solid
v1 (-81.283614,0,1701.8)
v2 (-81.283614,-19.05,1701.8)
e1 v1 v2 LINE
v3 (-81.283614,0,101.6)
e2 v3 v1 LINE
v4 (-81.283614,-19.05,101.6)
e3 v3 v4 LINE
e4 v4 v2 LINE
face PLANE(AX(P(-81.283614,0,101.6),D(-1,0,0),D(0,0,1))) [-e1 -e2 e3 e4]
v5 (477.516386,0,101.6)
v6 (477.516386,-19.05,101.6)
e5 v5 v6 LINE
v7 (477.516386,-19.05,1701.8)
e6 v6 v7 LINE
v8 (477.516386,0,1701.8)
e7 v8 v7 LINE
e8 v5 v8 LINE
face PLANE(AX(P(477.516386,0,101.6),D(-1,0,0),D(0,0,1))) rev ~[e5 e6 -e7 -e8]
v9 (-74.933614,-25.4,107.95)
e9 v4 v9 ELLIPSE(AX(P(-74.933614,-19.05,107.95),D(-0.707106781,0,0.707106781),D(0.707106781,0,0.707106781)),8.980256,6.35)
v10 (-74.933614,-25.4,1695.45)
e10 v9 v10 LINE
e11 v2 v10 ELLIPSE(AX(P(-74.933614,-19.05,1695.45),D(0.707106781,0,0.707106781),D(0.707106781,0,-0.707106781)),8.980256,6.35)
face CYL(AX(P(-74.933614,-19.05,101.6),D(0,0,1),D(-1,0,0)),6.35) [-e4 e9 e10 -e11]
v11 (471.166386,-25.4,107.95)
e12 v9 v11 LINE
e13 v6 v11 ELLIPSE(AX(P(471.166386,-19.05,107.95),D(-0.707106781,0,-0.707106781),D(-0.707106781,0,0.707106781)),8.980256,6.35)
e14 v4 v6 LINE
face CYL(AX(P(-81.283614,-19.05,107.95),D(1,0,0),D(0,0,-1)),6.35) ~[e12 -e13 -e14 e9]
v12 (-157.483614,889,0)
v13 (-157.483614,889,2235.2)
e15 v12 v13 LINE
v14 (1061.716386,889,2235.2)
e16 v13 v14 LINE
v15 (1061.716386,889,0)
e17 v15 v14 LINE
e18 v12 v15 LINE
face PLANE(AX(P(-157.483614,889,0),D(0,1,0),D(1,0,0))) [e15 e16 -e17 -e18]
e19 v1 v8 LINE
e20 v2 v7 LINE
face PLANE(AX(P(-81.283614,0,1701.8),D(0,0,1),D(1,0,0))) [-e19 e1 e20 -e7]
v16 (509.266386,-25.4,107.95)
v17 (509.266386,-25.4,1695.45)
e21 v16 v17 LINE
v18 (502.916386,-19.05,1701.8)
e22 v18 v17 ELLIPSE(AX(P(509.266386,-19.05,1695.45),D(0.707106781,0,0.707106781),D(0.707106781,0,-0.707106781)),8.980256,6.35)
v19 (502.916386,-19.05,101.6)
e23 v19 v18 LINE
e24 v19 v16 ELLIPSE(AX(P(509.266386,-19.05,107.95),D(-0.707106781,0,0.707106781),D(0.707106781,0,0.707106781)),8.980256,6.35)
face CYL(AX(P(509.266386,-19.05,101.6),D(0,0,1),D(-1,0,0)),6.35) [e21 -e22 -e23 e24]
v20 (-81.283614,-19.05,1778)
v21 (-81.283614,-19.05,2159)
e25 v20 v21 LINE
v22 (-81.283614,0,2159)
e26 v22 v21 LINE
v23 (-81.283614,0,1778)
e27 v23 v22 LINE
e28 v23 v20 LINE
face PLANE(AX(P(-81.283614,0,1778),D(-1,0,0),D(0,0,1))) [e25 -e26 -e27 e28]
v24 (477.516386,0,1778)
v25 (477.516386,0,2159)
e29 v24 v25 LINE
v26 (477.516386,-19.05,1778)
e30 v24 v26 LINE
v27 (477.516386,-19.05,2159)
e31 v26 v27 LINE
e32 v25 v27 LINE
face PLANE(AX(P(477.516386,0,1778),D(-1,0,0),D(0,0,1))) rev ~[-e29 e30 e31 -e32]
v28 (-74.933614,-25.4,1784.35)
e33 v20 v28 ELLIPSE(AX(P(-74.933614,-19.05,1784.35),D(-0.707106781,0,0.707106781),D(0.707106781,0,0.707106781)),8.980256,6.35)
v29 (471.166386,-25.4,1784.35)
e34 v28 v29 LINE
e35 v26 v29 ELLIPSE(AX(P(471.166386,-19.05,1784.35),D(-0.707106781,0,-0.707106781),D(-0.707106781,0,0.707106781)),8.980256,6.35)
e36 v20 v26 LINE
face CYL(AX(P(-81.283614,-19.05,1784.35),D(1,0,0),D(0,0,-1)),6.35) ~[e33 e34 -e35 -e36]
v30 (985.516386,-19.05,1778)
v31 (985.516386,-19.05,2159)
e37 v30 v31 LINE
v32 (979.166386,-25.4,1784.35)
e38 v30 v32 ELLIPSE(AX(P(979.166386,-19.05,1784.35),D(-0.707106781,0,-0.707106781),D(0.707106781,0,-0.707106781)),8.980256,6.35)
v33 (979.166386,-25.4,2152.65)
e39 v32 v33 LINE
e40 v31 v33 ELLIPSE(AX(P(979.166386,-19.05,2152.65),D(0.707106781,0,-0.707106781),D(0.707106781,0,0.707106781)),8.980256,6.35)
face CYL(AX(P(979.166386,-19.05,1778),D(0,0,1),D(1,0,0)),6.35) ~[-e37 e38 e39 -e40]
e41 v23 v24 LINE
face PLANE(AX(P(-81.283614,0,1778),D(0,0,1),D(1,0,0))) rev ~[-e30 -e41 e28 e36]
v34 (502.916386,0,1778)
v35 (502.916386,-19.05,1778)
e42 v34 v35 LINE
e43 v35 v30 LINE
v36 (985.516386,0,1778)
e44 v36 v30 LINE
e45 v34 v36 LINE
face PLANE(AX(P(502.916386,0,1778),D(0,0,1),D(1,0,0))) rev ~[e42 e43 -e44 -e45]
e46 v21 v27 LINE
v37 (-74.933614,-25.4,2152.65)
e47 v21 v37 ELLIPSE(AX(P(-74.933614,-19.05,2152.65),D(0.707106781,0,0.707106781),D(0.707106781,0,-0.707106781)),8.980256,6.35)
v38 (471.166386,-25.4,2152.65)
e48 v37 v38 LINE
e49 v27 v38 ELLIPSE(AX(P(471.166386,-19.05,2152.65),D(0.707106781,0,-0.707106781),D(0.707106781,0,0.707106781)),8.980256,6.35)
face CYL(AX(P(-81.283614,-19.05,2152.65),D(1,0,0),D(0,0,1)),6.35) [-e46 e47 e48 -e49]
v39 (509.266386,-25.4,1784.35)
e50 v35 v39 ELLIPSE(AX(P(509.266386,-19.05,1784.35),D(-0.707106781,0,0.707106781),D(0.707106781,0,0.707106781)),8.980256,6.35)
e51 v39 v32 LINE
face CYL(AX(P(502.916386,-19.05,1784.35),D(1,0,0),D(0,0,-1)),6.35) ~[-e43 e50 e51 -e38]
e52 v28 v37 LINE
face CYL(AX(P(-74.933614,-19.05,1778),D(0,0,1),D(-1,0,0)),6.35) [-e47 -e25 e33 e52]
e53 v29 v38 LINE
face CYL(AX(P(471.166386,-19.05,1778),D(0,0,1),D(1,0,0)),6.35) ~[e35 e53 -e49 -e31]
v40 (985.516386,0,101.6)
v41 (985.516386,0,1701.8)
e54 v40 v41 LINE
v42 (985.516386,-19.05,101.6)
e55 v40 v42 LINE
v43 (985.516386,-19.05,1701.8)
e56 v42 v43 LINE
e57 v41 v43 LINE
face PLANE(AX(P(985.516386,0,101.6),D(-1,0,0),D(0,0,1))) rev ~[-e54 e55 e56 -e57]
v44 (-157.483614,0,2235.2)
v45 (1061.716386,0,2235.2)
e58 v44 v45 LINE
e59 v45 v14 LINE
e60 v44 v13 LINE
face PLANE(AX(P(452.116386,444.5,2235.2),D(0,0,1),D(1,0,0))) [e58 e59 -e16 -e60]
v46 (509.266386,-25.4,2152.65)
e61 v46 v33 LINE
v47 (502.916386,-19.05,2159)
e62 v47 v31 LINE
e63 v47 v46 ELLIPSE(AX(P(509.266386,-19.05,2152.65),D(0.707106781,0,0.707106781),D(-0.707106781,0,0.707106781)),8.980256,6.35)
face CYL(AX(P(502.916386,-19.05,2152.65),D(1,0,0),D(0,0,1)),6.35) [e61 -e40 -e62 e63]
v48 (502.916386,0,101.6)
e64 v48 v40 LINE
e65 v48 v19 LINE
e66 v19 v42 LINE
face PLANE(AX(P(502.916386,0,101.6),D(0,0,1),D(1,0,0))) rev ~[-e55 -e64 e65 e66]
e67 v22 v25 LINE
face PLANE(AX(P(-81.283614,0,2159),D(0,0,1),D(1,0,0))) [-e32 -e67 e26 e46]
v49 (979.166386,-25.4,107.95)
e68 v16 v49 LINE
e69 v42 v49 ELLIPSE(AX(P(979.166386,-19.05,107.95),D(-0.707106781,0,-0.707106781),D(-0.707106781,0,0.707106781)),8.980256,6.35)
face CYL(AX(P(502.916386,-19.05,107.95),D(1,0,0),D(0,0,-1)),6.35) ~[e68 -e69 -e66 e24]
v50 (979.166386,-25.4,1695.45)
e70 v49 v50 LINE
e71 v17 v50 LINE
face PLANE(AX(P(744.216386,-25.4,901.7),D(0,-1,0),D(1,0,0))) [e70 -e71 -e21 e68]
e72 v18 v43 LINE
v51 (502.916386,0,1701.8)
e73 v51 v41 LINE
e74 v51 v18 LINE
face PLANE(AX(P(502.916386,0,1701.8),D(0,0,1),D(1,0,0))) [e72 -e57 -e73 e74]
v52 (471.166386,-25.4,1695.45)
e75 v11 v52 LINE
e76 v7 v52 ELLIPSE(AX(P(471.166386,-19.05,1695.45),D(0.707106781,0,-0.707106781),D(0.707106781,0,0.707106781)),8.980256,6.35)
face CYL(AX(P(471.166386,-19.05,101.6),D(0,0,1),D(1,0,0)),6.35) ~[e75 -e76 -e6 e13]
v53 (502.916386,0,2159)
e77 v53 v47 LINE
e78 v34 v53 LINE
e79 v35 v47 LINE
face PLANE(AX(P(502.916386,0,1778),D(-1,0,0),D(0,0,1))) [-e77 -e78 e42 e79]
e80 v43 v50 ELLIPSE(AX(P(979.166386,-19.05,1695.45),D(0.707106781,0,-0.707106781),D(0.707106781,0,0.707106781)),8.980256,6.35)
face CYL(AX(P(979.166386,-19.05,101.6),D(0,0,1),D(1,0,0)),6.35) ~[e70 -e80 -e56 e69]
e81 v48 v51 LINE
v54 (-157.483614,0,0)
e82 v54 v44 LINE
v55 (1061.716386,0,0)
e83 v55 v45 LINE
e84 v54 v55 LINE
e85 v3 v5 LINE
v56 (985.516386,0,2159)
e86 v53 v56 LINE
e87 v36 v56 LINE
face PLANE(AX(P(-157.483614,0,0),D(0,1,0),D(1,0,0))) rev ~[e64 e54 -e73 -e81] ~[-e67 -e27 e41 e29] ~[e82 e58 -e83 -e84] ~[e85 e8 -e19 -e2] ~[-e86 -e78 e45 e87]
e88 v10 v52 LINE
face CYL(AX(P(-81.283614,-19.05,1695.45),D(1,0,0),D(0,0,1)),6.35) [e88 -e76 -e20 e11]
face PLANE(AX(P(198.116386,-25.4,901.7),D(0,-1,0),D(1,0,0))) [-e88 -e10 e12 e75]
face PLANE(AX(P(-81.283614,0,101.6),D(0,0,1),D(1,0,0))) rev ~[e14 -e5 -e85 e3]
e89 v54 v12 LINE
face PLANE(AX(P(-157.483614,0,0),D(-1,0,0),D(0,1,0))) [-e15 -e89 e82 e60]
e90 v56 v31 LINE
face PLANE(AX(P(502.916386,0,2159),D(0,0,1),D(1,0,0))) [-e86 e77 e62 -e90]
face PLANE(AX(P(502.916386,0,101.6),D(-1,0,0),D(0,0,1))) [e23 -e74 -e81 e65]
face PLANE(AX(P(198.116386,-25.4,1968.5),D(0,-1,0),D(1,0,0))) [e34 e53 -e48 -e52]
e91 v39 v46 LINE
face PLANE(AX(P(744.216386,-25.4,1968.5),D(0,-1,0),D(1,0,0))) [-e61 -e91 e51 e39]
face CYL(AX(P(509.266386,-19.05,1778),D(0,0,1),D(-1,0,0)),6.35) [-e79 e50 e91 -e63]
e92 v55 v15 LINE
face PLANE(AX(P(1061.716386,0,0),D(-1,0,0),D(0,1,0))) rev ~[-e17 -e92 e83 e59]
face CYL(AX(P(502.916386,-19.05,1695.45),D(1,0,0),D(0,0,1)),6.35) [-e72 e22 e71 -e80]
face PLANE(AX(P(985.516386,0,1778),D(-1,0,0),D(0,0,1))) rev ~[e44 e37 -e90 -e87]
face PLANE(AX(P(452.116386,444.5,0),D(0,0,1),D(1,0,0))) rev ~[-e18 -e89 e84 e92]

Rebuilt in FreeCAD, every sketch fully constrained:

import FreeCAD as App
import Part
import Sketcher
Q = App.Units.Quantity


def edges_at(feature, points):
    """Names of the edges that pass closest to the given points."""
    edges = feature.Shape.Edges
    near = lambda p: min(range(len(edges)), key=lambda i: edges[i].distToShape(Part.Vertex(*p))[0])
    return sorted({f"Edge{near(p) + 1}" for p in points})

doc = App.newDocument("Part")
body = doc.addObject("PartDesign::Body", "Body")

sketch1 = doc.addObject("Sketcher::SketchObject", "Sketch")
body.addObject(sketch1)
sketch1.AttachmentSupport = (doc.XY_Plane, [""])
sketch1.MapMode = "FlatFace"
sketch1.addGeometry(Part.LineSegment(App.Vector(-157.483614, 889, 0), App.Vector(-157.483614, 0, 0)), False)
sketch1.addGeometry(Part.LineSegment(App.Vector(-157.483614, 0, 0), App.Vector(1061.716386, 0, 0)), False)
sketch1.addGeometry(Part.LineSegment(App.Vector(1061.716386, 0, 0), App.Vector(1061.716386, 889, 0)), False)
sketch1.addGeometry(Part.LineSegment(App.Vector(1061.716386, 889, 0), App.Vector(-157.483614, 889, 0)), False)
sketch1.addConstraint(Sketcher.Constraint("Coincident", 0, 2, 1, 1))
sketch1.addConstraint(Sketcher.Constraint("Coincident", 1, 2, 2, 1))
sketch1.addConstraint(Sketcher.Constraint("Coincident", 2, 2, 3, 1))
sketch1.addConstraint(Sketcher.Constraint("Coincident", 3, 2, 0, 1))
sketch1.addConstraint(Sketcher.Constraint("Vertical", 0))
sketch1.addConstraint(Sketcher.Constraint("Horizontal", 1))
sketch1.addConstraint(Sketcher.Constraint("Vertical", 2))
sketch1.addConstraint(Sketcher.Constraint("Horizontal", 3))
sketch1.addConstraint(Sketcher.Constraint("PointOnObject", 0, 2, -1))
sketch1.addConstraint(Sketcher.Constraint("DistanceX", 1, 1, 1, 2, Q("48 in")))
sketch1.addConstraint(Sketcher.Constraint("DistanceY", 0, 2, 0, 1, Q("35 in")))
sketch1.addConstraint(Sketcher.Constraint("DistanceX", 0, 2, -1, 1, Q("157.483614 mm")))
pad1 = doc.addObject("PartDesign::Pad", "Pad")
body.addObject(pad1)
pad1.Profile = sketch1
pad1.Length = Q("88 in")

sketch2 = doc.addObject("Sketcher::SketchObject", "Sketch001")
body.addObject(sketch2)
sketch2.AttachmentSupport = (doc.XZ_Plane, [""])
sketch2.MapMode = "FlatFace"
sketch2.addGeometry(Part.LineSegment(App.Vector(-81.283614, 1701.8, 0), App.Vector(-81.283614, 101.6, 0)), False)
sketch2.addGeometry(Part.LineSegment(App.Vector(-81.283614, 101.6, 0), App.Vector(477.516386, 101.6, 0)), False)
sketch2.addGeometry(Part.LineSegment(App.Vector(477.516386, 101.6, 0), App.Vector(477.516386, 1701.8, 0)), False)
sketch2.addGeometry(Part.LineSegment(App.Vector(477.516386, 1701.8, 0), App.Vector(-81.283614, 1701.8, 0)), False)
sketch2.addGeometry(Part.LineSegment(App.Vector(502.916386, 1701.8, 0), App.Vector(502.916386, 101.6, 0)), False)
sketch2.addGeometry(Part.LineSegment(App.Vector(502.916386, 101.6, 0), App.Vector(985.516386, 101.6, 0)), False)
sketch2.addGeometry(Part.LineSegment(App.Vector(985.516386, 101.6, 0), App.Vector(985.516386, 1701.8, 0)), False)
sketch2.addGeometry(Part.LineSegment(App.Vector(985.516386, 1701.8, 0), App.Vector(502.916386, 1701.8, 0)), False)
sketch2.addGeometry(Part.LineSegment(App.Vector(-81.283614, 2159, 0), App.Vector(-81.283614, 1778, 0)), False)
sketch2.addGeometry(Part.LineSegment(App.Vector(-81.283614, 1778, 0), App.Vector(477.516386, 1778, 0)), False)
sketch2.addGeometry(Part.LineSegment(App.Vector(477.516386, 1778, 0), App.Vector(477.516386, 2159, 0)), False)
sketch2.addGeometry(Part.LineSegment(App.Vector(477.516386, 2159, 0), App.Vector(-81.283614, 2159, 0)), False)
sketch2.addGeometry(Part.LineSegment(App.Vector(502.916386, 2159, 0), App.Vector(502.916386, 1778, 0)), False)
sketch2.addGeometry(Part.LineSegment(App.Vector(502.916386, 1778, 0), App.Vector(985.516386, 1778, 0)), False)
sketch2.addGeometry(Part.LineSegment(App.Vector(985.516386, 1778, 0), App.Vector(985.516386, 2159, 0)), False)
sketch2.addGeometry(Part.LineSegment(App.Vector(985.516386, 2159, 0), App.Vector(502.916386, 2159, 0)), False)
sketch2.addConstraint(Sketcher.Constraint("Coincident", 0, 2, 1, 1))
sketch2.addConstraint(Sketcher.Constraint("Coincident", 1, 2, 2, 1))
sketch2.addConstraint(Sketcher.Constraint("Coincident", 2, 2, 3, 1))
sketch2.addConstraint(Sketcher.Constraint("Coincident", 3, 2, 0, 1))
sketch2.addConstraint(Sketcher.Constraint("Coincident", 4, 2, 5, 1))
sketch2.addConstraint(Sketcher.Constraint("Coincident", 5, 2, 6, 1))
sketch2.addConstraint(Sketcher.Constraint("Coincident", 6, 2, 7, 1))
sketch2.addConstraint(Sketcher.Constraint("Coincident", 7, 2, 4, 1))
sketch2.addConstraint(Sketcher.Constraint("Coincident", 8, 2, 9, 1))
sketch2.addConstraint(Sketcher.Constraint("Coincident", 9, 2, 10, 1))
sketch2.addConstraint(Sketcher.Constraint("Coincident", 10, 2, 11, 1))
sketch2.addConstraint(Sketcher.Constraint("Coincident", 11, 2, 8, 1))
sketch2.addConstraint(Sketcher.Constraint("Coincident", 12, 2, 13, 1))
sketch2.addConstraint(Sketcher.Constraint("Coincident", 13, 2, 14, 1))
sketch2.addConstraint(Sketcher.Constraint("Coincident", 14, 2, 15, 1))
sketch2.addConstraint(Sketcher.Constraint("Coincident", 15, 2, 12, 1))
sketch2.addConstraint(Sketcher.Constraint("Vertical", 0))
sketch2.addConstraint(Sketcher.Constraint("Horizontal", 1))
sketch2.addConstraint(Sketcher.Constraint("Vertical", 2))
sketch2.addConstraint(Sketcher.Constraint("Horizontal", 3))
sketch2.addConstraint(Sketcher.Constraint("Vertical", 4))
sketch2.addConstraint(Sketcher.Constraint("Horizontal", 5))
sketch2.addConstraint(Sketcher.Constraint("Vertical", 6))
sketch2.addConstraint(Sketcher.Constraint("Horizontal", 7))
sketch2.addConstraint(Sketcher.Constraint("Vertical", 8))
sketch2.addConstraint(Sketcher.Constraint("Horizontal", 9))
sketch2.addConstraint(Sketcher.Constraint("Vertical", 10))
sketch2.addConstraint(Sketcher.Constraint("Horizontal", 11))
sketch2.addConstraint(Sketcher.Constraint("Vertical", 12))
sketch2.addConstraint(Sketcher.Constraint("Horizontal", 13))
sketch2.addConstraint(Sketcher.Constraint("Vertical", 14))
sketch2.addConstraint(Sketcher.Constraint("Horizontal", 15))
sketch2.addConstraint(Sketcher.Constraint("Horizontal", 1, 2, 4, 2))
sketch2.addConstraint(Sketcher.Constraint("Horizontal", 3, 2, 6, 2))
sketch2.addConstraint(Sketcher.Constraint("Horizontal", 9, 2, 12, 2))
sketch2.addConstraint(Sketcher.Constraint("Horizontal", 11, 2, 14, 2))
sketch2.addConstraint(Sketcher.Constraint("Vertical", 3, 2, 8, 2))
sketch2.addConstraint(Sketcher.Constraint("Vertical", 2, 2, 9, 2))
sketch2.addConstraint(Sketcher.Constraint("Vertical", 7, 2, 12, 2))
sketch2.addConstraint(Sketcher.Constraint("Vertical", 6, 2, 13, 2))
sketch2.addConstraint(Sketcher.Constraint("DistanceX", 1, 1, 1, 2, Q("22 in")))
sketch2.addConstraint(Sketcher.Constraint("DistanceX", 5, 1, 5, 2, Q("19 in")))
sketch2.addConstraint(Sketcher.Constraint("DistanceY", 0, 2, 0, 1, Q("63 in")))
sketch2.addConstraint(Sketcher.Constraint("DistanceY", 8, 2, 8, 1, Q("15 in")))
sketch2.addConstraint(Sketcher.Constraint("DistanceY", -1, 1, 0, 2, Q("4 in")))
sketch2.addConstraint(Sketcher.Constraint("DistanceY", -1, 1, 8, 2, Q("70 in")))
sketch2.addConstraint(Sketcher.Constraint("DistanceX", 1, 2, 4, 2, Q("1 in")))
sketch2.addConstraint(Sketcher.Constraint("DistanceX", 0, 2, -1, 1, Q("81.283614 mm")))
pad2 = doc.addObject("PartDesign::Pad", "Pad001")
body.addObject(pad2)
pad2.Profile = sketch2
pad2.Length = Q("1 in")
doc.recompute()

fillet = doc.addObject("PartDesign::Fillet", "Fillet")
body.addObject(fillet)
fillet.Base = (pad2, edges_at(pad2, [
    (502.916, -25.4, 1968.5),
    (744.216, -25.4, 1778),
    (985.516, -25.4, 1968.5),
    (744.216, -25.4, 2159),
    (477.516, -25.4, 1968.5),
    (198.116, -25.4, 2159),
    (-81.284, -25.4, 1968.5),
    (198.116, -25.4, 1778),
    (477.516, -25.4, 901.7),
    (198.116, -25.4, 1701.8),
    (-81.284, -25.4, 901.7),
    (198.116, -25.4, 101.6),
    (985.516, -25.4, 901.7),
    (744.216, -25.4, 1701.8),
    (502.916, -25.4, 901.7),
    (744.216, -25.4, 101.6),
]))
fillet.Radius = Q("0.25 in")

doc.recompute()
